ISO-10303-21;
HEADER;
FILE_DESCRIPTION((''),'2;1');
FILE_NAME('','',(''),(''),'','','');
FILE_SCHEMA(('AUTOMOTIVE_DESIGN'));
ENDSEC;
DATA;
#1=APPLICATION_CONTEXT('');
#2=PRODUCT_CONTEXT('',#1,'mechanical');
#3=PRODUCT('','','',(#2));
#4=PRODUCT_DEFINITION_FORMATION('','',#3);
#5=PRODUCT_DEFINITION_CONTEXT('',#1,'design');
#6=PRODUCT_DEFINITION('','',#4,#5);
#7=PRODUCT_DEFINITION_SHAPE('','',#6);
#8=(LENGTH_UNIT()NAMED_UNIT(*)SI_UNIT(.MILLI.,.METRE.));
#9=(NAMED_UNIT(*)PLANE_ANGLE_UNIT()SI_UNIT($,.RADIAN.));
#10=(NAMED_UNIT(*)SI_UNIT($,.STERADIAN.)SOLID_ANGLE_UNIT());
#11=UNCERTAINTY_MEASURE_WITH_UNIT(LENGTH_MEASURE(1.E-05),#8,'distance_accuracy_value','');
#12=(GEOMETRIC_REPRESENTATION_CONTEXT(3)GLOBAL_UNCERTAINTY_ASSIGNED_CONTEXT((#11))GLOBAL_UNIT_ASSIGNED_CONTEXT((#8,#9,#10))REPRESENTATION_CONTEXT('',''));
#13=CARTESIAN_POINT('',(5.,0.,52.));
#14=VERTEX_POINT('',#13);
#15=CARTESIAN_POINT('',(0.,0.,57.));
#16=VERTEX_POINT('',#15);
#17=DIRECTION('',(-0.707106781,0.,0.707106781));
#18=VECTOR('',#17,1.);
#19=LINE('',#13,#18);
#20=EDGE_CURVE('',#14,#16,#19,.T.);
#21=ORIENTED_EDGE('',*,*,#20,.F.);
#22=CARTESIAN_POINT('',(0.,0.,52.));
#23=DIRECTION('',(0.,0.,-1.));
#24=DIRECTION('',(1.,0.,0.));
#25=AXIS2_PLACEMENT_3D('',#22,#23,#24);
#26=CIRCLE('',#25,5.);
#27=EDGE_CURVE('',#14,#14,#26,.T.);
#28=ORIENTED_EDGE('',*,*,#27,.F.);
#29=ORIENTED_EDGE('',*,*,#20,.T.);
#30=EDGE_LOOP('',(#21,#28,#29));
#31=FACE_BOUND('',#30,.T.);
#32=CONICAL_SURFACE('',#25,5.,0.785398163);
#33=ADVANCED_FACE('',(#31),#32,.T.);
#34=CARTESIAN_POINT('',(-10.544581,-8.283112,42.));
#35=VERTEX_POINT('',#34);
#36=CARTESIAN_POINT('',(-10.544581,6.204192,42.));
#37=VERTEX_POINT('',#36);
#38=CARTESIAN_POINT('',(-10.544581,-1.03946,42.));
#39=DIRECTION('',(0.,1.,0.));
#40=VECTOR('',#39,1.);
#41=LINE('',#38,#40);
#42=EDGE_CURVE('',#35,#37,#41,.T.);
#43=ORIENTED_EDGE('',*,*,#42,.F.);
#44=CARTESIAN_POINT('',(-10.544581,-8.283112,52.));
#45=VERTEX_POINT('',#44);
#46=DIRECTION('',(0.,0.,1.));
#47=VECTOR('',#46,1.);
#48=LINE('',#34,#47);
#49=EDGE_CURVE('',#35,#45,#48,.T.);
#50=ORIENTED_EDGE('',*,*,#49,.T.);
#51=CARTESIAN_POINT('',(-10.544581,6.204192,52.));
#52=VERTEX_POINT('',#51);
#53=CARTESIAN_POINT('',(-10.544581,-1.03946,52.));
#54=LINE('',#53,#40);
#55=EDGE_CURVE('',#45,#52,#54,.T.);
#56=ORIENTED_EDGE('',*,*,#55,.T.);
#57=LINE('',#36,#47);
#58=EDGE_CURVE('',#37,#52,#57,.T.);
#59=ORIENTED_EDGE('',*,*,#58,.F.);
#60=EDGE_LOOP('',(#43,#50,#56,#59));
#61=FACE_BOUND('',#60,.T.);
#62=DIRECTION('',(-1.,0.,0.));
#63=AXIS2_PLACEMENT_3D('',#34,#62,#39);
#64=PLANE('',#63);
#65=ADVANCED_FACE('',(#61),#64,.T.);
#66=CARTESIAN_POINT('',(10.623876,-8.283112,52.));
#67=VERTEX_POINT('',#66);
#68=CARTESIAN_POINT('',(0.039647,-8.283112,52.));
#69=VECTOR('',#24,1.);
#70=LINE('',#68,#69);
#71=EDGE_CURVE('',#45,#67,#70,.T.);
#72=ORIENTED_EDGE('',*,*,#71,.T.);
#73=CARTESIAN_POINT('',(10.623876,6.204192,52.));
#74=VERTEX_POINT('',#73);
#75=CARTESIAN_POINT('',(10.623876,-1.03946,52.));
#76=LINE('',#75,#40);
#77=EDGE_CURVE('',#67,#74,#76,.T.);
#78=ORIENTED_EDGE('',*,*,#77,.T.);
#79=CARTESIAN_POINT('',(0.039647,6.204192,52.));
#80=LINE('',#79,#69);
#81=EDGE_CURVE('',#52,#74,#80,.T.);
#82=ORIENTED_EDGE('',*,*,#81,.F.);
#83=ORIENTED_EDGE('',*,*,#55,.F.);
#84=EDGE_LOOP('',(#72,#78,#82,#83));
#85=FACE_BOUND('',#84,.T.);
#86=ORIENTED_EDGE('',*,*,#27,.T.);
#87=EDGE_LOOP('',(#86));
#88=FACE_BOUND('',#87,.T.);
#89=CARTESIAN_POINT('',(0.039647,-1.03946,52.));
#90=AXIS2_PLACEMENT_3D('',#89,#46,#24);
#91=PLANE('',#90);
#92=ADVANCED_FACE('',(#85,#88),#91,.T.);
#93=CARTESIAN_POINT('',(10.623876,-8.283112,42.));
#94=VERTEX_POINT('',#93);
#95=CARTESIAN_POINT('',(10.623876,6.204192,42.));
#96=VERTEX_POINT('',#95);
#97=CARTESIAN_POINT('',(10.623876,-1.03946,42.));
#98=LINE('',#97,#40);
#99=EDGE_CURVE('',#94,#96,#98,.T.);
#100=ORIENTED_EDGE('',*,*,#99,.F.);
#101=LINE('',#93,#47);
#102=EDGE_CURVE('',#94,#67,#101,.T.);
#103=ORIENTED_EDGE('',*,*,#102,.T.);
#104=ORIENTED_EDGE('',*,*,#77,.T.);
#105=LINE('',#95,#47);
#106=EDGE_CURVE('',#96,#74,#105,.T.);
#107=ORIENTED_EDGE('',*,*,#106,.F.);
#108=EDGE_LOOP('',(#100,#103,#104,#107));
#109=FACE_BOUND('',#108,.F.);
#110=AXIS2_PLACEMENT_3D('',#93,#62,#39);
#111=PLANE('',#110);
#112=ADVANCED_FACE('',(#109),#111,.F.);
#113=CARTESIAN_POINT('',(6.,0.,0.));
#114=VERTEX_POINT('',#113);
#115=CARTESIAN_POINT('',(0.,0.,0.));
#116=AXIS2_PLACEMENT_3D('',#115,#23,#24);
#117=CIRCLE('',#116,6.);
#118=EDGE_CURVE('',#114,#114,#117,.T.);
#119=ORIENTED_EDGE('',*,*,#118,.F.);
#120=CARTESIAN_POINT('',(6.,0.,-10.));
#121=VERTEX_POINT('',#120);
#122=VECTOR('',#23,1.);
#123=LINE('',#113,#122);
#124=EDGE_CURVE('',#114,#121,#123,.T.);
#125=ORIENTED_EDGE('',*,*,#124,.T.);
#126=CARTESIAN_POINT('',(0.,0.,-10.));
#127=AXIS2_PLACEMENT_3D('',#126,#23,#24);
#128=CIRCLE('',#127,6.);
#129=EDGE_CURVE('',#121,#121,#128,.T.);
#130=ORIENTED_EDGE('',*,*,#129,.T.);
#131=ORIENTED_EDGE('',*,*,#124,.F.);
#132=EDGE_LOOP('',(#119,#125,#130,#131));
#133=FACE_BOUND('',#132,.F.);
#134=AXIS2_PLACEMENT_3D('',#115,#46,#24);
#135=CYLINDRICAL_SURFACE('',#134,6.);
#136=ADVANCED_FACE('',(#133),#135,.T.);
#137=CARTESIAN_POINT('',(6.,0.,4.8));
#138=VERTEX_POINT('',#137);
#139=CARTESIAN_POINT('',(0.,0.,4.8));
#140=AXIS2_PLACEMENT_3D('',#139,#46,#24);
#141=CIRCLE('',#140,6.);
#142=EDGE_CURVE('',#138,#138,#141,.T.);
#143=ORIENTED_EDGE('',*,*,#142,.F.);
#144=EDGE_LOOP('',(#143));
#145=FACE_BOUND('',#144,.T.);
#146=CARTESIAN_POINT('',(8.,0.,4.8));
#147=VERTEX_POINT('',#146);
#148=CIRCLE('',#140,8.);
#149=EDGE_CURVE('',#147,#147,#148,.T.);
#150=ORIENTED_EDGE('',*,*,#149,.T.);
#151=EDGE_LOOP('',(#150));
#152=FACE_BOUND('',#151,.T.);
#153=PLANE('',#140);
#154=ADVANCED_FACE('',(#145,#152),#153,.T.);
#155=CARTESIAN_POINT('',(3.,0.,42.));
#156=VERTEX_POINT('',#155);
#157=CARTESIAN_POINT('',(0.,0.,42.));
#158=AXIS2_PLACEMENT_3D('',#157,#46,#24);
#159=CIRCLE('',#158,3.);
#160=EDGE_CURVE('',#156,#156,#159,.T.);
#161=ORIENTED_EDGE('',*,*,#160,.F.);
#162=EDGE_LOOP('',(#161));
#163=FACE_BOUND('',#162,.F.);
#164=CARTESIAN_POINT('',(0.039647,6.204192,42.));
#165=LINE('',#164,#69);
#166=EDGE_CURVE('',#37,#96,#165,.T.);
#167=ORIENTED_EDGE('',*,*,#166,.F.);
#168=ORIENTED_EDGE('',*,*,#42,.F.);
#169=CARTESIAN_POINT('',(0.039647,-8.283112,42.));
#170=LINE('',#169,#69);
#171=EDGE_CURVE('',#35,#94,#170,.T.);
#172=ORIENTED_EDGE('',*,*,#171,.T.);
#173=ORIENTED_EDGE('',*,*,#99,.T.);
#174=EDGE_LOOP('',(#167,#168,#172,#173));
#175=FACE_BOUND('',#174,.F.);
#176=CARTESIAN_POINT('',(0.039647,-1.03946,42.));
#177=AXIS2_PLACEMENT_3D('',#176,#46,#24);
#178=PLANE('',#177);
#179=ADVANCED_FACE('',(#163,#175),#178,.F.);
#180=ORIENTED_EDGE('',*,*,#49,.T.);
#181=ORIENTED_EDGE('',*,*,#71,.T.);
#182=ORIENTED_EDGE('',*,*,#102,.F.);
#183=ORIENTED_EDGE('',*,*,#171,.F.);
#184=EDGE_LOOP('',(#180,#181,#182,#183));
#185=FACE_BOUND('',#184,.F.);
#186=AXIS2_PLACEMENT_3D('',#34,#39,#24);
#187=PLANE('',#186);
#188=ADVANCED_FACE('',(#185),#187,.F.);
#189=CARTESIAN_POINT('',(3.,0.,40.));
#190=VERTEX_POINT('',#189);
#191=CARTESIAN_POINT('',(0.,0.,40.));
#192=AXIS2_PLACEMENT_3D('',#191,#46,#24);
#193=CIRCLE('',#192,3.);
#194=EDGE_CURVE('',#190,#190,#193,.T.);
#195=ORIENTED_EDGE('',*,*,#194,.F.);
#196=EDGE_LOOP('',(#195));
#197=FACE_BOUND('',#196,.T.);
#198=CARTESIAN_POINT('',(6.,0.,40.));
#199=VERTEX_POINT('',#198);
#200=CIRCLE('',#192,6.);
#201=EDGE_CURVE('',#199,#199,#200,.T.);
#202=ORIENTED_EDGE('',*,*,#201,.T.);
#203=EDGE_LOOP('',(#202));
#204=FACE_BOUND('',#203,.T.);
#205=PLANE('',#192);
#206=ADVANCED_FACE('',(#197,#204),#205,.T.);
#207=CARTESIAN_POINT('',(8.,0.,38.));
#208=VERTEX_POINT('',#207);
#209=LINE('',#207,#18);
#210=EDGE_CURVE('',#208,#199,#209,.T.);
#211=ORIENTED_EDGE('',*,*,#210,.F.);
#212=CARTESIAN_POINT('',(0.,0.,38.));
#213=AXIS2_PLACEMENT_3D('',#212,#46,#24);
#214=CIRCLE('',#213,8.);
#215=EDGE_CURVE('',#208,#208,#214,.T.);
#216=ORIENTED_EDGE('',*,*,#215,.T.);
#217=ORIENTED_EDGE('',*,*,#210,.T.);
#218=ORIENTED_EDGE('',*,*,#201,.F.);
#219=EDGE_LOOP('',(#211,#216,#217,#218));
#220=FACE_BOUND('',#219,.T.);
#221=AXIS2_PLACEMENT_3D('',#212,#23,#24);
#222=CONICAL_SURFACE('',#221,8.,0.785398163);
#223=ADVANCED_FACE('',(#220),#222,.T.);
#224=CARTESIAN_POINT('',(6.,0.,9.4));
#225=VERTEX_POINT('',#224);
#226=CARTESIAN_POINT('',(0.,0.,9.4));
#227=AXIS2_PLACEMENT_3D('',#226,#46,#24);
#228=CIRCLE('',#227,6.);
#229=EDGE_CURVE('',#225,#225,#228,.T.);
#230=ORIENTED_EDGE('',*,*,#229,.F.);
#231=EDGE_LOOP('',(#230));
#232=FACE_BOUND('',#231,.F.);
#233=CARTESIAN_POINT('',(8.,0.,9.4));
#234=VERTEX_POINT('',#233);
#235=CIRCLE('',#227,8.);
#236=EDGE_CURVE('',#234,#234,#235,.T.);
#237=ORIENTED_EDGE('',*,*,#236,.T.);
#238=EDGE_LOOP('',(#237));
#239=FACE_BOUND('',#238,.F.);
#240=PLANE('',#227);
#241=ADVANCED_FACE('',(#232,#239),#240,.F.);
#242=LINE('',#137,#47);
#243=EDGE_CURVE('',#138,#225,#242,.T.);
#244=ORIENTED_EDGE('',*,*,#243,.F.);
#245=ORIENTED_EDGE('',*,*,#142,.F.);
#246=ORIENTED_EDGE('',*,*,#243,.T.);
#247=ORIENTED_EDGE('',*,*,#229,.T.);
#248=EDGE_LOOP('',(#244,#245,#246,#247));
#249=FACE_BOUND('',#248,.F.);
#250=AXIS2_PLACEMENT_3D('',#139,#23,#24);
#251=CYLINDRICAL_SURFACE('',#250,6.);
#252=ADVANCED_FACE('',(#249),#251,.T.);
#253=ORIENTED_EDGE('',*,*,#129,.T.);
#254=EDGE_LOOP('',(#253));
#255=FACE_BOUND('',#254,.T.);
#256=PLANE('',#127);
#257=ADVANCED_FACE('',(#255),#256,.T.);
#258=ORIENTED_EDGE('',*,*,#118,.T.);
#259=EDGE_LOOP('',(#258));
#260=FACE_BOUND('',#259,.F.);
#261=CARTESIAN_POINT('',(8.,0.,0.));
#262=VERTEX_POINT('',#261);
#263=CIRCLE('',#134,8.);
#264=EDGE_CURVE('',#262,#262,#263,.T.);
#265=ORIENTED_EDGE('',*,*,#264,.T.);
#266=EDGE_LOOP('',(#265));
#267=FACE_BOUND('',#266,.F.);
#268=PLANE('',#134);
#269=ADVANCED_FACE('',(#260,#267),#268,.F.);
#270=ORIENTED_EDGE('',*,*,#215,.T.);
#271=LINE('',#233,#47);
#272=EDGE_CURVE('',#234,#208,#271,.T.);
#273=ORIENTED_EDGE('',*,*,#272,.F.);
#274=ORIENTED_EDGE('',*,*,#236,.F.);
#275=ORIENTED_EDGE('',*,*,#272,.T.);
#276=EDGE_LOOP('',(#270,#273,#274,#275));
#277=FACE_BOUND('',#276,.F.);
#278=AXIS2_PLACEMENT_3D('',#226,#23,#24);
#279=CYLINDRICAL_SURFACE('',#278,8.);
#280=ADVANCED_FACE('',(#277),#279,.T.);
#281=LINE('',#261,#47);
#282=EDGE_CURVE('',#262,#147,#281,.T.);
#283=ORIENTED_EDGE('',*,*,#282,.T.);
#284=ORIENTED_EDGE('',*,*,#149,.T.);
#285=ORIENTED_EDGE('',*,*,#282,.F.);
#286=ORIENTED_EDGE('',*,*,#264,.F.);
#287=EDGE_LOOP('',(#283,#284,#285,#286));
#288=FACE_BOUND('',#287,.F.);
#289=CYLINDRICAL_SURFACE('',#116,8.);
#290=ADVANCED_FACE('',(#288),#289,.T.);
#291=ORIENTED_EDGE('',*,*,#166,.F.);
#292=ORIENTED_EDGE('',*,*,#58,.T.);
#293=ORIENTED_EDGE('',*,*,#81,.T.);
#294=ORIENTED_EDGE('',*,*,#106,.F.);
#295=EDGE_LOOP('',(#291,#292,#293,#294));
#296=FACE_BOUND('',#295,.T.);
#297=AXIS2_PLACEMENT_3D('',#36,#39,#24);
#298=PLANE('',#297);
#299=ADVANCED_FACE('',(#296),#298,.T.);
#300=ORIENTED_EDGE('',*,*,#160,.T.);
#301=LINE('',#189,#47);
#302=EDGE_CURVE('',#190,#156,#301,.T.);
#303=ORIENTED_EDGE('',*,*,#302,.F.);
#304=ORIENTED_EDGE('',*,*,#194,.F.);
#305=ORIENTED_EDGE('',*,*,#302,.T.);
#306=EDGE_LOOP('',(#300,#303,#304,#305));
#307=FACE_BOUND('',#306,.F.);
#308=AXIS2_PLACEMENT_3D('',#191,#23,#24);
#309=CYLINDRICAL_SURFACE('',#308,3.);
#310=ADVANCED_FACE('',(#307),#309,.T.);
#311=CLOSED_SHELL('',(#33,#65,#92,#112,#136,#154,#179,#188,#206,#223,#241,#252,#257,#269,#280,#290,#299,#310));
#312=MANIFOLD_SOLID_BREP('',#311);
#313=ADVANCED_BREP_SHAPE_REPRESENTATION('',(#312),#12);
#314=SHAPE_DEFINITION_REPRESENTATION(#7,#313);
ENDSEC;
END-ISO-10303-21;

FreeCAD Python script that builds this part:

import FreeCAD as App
import Part
import Sketcher


def edges_at(feature, points):
    """Names of the edges that pass closest to the given points."""
    edges = feature.Shape.Edges
    near = lambda p: min(range(len(edges)), key=lambda i: edges[i].distToShape(Part.Vertex(*p))[0])
    return sorted({f"Edge{near(p) + 1}" for p in points})


def add_polygon(sketch, points):
    """Adds a closed chain of lines whose ends are joined by coincident constraints."""
    first, n = sketch.GeometryCount, len(points)
    for a, b in zip(points, points[1:] + points[:1]):
        sketch.addGeometry(Part.LineSegment(App.Vector(*a, 0), App.Vector(*b, 0)), False)
    for i in range(n):
        sketch.addConstraint(Sketcher.Constraint("Coincident", first + i, 2, first + (i + 1) % n, 1))

doc = App.newDocument("Part")
params = doc.addObject("Spreadsheet::Sheet", "Params")
for row, (alias, value) in enumerate([
    ("sketch1_diameter", "16 mm"),
    ("pad1_length", "4.8 mm"),
    ("sketch2_diameter", "12 mm"),
    ("pad2_length", "4.6 mm"),
    ("sketch3_diameter", "16 mm"),
    ("pad3_length", "30.6 mm"),
    ("chamfer_size", "2 mm"),
    ("sketch4_diameter", "6 mm"),
    ("pad4_length", "2 mm"),
    ("pad5_length", "10 mm"),
    ("sketch6_diameter", "10 mm"),
    ("pad6_length", "5 mm"),
    ("pad6_taper", "-45 deg"),
    ("sketch7_diameter", "12 mm"),
    ("pad7_length", "10 mm"),
], start=1):
    params.set(f"A{row}", alias)
    params.set(f"B{row}", "=" + value)
    params.setAlias(f"B{row}", alias)

body = doc.addObject("PartDesign::Body", "Body")

# Sketch on XY plane
sketch1 = doc.addObject("Sketcher::SketchObject", "Sketch")
body.addObject(sketch1)
sketch1.AttachmentSupport = (doc.XY_Plane, [""])
sketch1.MapMode = "FlatFace"
sketch1.addGeometry(Part.Circle(App.Vector(0, 0, 0), App.Vector(0, 0, 1), 8), False)
sketch1.addConstraint([
    Sketcher.Constraint("Coincident", 0, 3, -1, 1),
    Sketcher.Constraint("Diameter", 0, 16.0),
])
sketch1.setExpression("Constraints[1]", "Params.sketch1_diameter")
pad1 = doc.addObject("PartDesign::Pad", "Pad")
body.addObject(pad1)
pad1.Profile = sketch1
pad1.setExpression("Length", "Params.pad1_length")

# Sketch on XY plane
sketch2 = doc.addObject("Sketcher::SketchObject", "Sketch001")
body.addObject(sketch2)
sketch2.AttachmentSupport = (doc.XY_Plane, [""])
sketch2.MapMode = "FlatFace"
sketch2.AttachmentOffset = App.Placement(App.Vector(0, 0, 4.8), App.Rotation())
sketch2.addGeometry(Part.Circle(App.Vector(0, 0, 0), App.Vector(0, 0, 1), 6), False)
sketch2.addConstraint([
    Sketcher.Constraint("Coincident", 0, 3, -1, 1),
    Sketcher.Constraint("Diameter", 0, 12.0),
])
sketch2.setExpression("Constraints[1]", "Params.sketch2_diameter")
pad2 = doc.addObject("PartDesign::Pad", "Pad001")
body.addObject(pad2)
pad2.Profile = sketch2
pad2.setExpression("Length", "Params.pad2_length")

# Sketch on XY plane
sketch3 = doc.addObject("Sketcher::SketchObject", "Sketch002")
body.addObject(sketch3)
sketch3.AttachmentSupport = (doc.XY_Plane, [""])
sketch3.MapMode = "FlatFace"
sketch3.AttachmentOffset = App.Placement(App.Vector(0, 0, 9.4), App.Rotation())
sketch3.addGeometry(Part.Circle(App.Vector(0, 0, 0), App.Vector(0, 0, 1), 8), False)
sketch3.addConstraint([
    Sketcher.Constraint("Coincident", 0, 3, -1, 1),
    Sketcher.Constraint("Diameter", 0, 16.0),
])
sketch3.setExpression("Constraints[1]", "Params.sketch3_diameter")
pad3 = doc.addObject("PartDesign::Pad", "Pad002")
body.addObject(pad3)
pad3.Profile = sketch3
pad3.setExpression("Length", "Params.pad3_length")
doc.recompute()

chamfer = doc.addObject("PartDesign::Chamfer", "Chamfer")
body.addObject(chamfer)
chamfer.Base = (pad3, edges_at(pad3, [(-8, 0, 40)]))
chamfer.setExpression("Size", "Params.chamfer_size")

# Sketch on XY plane
sketch4 = doc.addObject("Sketcher::SketchObject", "Sketch003")
body.addObject(sketch4)
sketch4.AttachmentSupport = (doc.XY_Plane, [""])
sketch4.MapMode = "FlatFace"
sketch4.AttachmentOffset = App.Placement(App.Vector(0, 0, 40), App.Rotation())
sketch4.addGeometry(Part.Circle(App.Vector(0, 0, 0), App.Vector(0, 0, 1), 3), False)
sketch4.addConstraint([
    Sketcher.Constraint("Coincident", 0, 3, -1, 1),
    Sketcher.Constraint("Diameter", 0, 6.0),
])
sketch4.setExpression("Constraints[1]", "Params.sketch4_diameter")
pad4 = doc.addObject("PartDesign::Pad", "Pad003")
body.addObject(pad4)
pad4.Profile = sketch4
pad4.setExpression("Length", "Params.pad4_length")

# Sketch on XY plane
sketch5 = doc.addObject("Sketcher::SketchObject", "Sketch004")
body.addObject(sketch5)
sketch5.AttachmentSupport = (doc.XY_Plane, [""])
sketch5.MapMode = "FlatFace"
sketch5.AttachmentOffset = App.Placement(App.Vector(0, 0, 42), App.Rotation())
add_polygon(sketch5, [(-11, 6), (-11, -8), (11, -8), (11, 6)])  # lines 0-3
sketch5.addConstraint([
    Sketcher.Constraint("Vertical", 0),
    Sketcher.Constraint("Horizontal", 1),
    Sketcher.Constraint("Vertical", 2),
    Sketcher.Constraint("Horizontal", 3),
    Sketcher.Constraint("DistanceX", 1, 1, 1, 2, 21.168457),
    Sketcher.Constraint("DistanceY", 0, 2, 0, 1, 14.487304),
    Sketcher.Constraint("DistanceX", 0, 2, -1, 1, 10.544581),
    Sketcher.Constraint("DistanceY", -1, 1, 2, 2, 6.204192),
])
pad5 = doc.addObject("PartDesign::Pad", "Pad004")
body.addObject(pad5)
pad5.Profile = sketch5
pad5.setExpression("Length", "Params.pad5_length")

# Sketch on XY plane
sketch6 = doc.addObject("Sketcher::SketchObject", "Sketch005")
body.addObject(sketch6)
sketch6.AttachmentSupport = (doc.XY_Plane, [""])
sketch6.MapMode = "FlatFace"
sketch6.AttachmentOffset = App.Placement(App.Vector(0, 0, 52), App.Rotation())
sketch6.addGeometry(Part.Circle(App.Vector(0, 0, 0), App.Vector(0, 0, 1), 5), False)
sketch6.addConstraint([
    Sketcher.Constraint("Coincident", 0, 3, -1, 1),
    Sketcher.Constraint("Diameter", 0, 10.0),
])
sketch6.setExpression("Constraints[1]", "Params.sketch6_diameter")
pad6 = doc.addObject("PartDesign::Pad", "Pad005")
body.addObject(pad6)
pad6.Profile = sketch6
pad6.setExpression("Length", "Params.pad6_length")
pad6.setExpression("TaperAngle", "Params.pad6_taper")

# Sketch on XY plane
sketch7 = doc.addObject("Sketcher::SketchObject", "Sketch006")
body.addObject(sketch7)
sketch7.AttachmentSupport = (doc.XY_Plane, [""])
sketch7.MapMode = "FlatFace"
sketch7.addGeometry(Part.Circle(App.Vector(0, 0, 0), App.Vector(0, 0, 1), 6), False)
sketch7.addConstraint([
    Sketcher.Constraint("Coincident", 0, 3, -1, 1),
    Sketcher.Constraint("Diameter", 0, 12.0),
])
sketch7.setExpression("Constraints[1]", "Params.sketch7_diameter")
pad7 = doc.addObject("PartDesign::Pad", "Pad006")
body.addObject(pad7)
pad7.Profile = sketch7
pad7.setExpression("Length", "Params.pad7_length")
pad7.Reversed = True

doc.recompute()
